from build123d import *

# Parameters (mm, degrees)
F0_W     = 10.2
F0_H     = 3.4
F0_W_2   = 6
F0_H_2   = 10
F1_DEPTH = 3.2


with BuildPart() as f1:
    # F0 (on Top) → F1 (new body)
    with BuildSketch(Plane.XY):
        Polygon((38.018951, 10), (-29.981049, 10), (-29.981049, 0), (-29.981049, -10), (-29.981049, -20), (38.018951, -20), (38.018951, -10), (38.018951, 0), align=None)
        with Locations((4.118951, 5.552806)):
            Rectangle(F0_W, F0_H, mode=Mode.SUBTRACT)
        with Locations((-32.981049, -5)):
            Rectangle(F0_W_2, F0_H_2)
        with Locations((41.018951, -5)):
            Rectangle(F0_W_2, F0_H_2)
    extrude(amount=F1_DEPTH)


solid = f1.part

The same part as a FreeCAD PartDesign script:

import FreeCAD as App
import Part
import Sketcher

V = App.Vector

doc = App.newDocument("Part")
body = doc.addObject("PartDesign::Body", "Body")

sketch1 = body.newObject("Sketcher::SketchObject", "Sketch")
sketch1.AttachmentSupport = (doc.getObject("XY_Plane"), [""])
sketch1.MapMode = "FlatFace"
sketch1.addGeometry([
    Part.LineSegment(V(38, 10, 0), V(-30, 10, 0)),
    Part.LineSegment(V(-30, 10, 0), V(-30, 0, 0)),
    Part.LineSegment(V(-30, 0, 0), V(-36, 0, 0)),
    Part.LineSegment(V(-36, 0, 0), V(-36, -10, 0)),
    Part.LineSegment(V(-36, -10, 0), V(-30, -10, 0)),
    Part.LineSegment(V(-30, -10, 0), V(-30, -20, 0)),
    Part.LineSegment(V(-30, -20, 0), V(38, -20, 0)),
    Part.LineSegment(V(38, -20, 0), V(38, -10, 0)),
    Part.LineSegment(V(38, -10, 0), V(44, -10, 0)),
    Part.LineSegment(V(44, -10, 0), V(44, 0, 0)),
    Part.LineSegment(V(44, 0, 0), V(38, 0, 0)),
    Part.LineSegment(V(38, 0, 0), V(38, 10, 0)),
    Part.LineSegment(V(9.2, 3.9, 0), V(-1, 3.9, 0)),
    Part.LineSegment(V(-1, 3.9, 0), V(-1, 7.3, 0)),
    Part.LineSegment(V(-1, 7.3, 0), V(9.2, 7.3, 0)),
    Part.LineSegment(V(9.2, 7.3, 0), V(9.2, 3.9, 0)),
], False)
sketch1.addConstraint([
    Sketcher.Constraint("Coincident", 0, 2, 1, 1),
    Sketcher.Constraint("Coincident", 1, 2, 2, 1),
    Sketcher.Constraint("Coincident", 2, 2, 3, 1),
    Sketcher.Constraint("Coincident", 3, 2, 4, 1),
    Sketcher.Constraint("Coincident", 4, 2, 5, 1),
    Sketcher.Constraint("Coincident", 5, 2, 6, 1),
    Sketcher.Constraint("Coincident", 6, 2, 7, 1),
    Sketcher.Constraint("Coincident", 7, 2, 8, 1),
    Sketcher.Constraint("Coincident", 8, 2, 9, 1),
    Sketcher.Constraint("Coincident", 9, 2, 10, 1),
    Sketcher.Constraint("Coincident", 10, 2, 11, 1),
    Sketcher.Constraint("Coincident", 11, 2, 0, 1),
    Sketcher.Constraint("Coincident", 12, 2, 13, 1),
    Sketcher.Constraint("Coincident", 13, 2, 14, 1),
    Sketcher.Constraint("Coincident", 14, 2, 15, 1),
    Sketcher.Constraint("Coincident", 15, 2, 12, 1),
    Sketcher.Constraint("Horizontal", 0),
    Sketcher.Constraint("Vertical", 1),
    Sketcher.Constraint("Horizontal", 2),
    Sketcher.Constraint("Vertical", 3),
    Sketcher.Constraint("Horizontal", 4),
    Sketcher.Constraint("Vertical", 5),
    Sketcher.Constraint("Horizontal", 6),
    Sketcher.Constraint("Vertical", 7),
    Sketcher.Constraint("Horizontal", 8),
    Sketcher.Constraint("Vertical", 9),
    Sketcher.Constraint("Horizontal", 10),
    Sketcher.Constraint("Vertical", 11),
    Sketcher.Constraint("Horizontal", 12),
    Sketcher.Constraint("Vertical", 13),
    Sketcher.Constraint("Horizontal", 14),
    Sketcher.Constraint("Vertical", 15),
    Sketcher.Constraint("Symmetric", 0, 2, 4, 2, -1),
    Sketcher.Constraint("Symmetric", 7, 2, 11, 2, -1),
    Sketcher.Constraint("PointOnObject", 1, 2, -1),
    Sketcher.Constraint("PointOnObject", 9, 2, -1),
    Sketcher.Constraint("Equal", 4, 8),
    Sketcher.Constraint("Equal", 3, 5),
    Sketcher.Constraint("DistanceX", 0, 2, 0, 1, 68.0),
    Sketcher.Constraint("DistanceX", 2, 2, 2, 1, 6.0),
    Sketcher.Constraint("DistanceY", 1, 2, 1, 1, 10.0),
    Sketcher.Constraint("DistanceX", 12, 2, 12, 1, 10.2),
    Sketcher.Constraint("DistanceY", 13, 1, 13, 2, 3.4),
    Sketcher.Constraint("DistanceX", 1, 2, 12, 2, 29.0),
    Sketcher.Constraint("DistanceX", 0, 2, -1, 1, 29.981049),
    Sketcher.Constraint("DistanceY", -1, 1, 12, 2, 3.852806),
])
pad1 = body.newObject("PartDesign::Pad", "Pad")
pad1.Profile = sketch1
pad1.Length = 3.2

doc.recompute()
